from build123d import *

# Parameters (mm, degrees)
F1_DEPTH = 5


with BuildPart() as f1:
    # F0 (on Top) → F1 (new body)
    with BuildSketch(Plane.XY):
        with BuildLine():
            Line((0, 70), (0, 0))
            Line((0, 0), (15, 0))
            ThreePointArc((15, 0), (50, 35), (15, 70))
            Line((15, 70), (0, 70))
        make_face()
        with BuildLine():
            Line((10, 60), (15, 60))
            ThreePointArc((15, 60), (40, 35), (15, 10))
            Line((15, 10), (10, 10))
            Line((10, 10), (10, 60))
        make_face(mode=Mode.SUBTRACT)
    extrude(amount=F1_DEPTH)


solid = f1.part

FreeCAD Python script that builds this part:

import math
import FreeCAD as App
import Part
import Sketcher

V = App.Vector
Q = App.Units.Quantity

doc = App.newDocument("Part")
body = doc.addObject("PartDesign::Body", "Body")

# Sketch on XY plane
sketch1 = body.newObject("Sketcher::SketchObject", "Sketch")
sketch1.AttachmentSupport = (doc.getObject("XY_Plane"), [""])
sketch1.MapMode = "FlatFace"
sketch1.addGeometry([
    Part.LineSegment(V(0, 70, 0), V(0, 0, 0)),  # 0
    Part.LineSegment(V(0, 0, 0), V(15, 0, 0)),  # 1
    Part.ArcOfCircle(Part.Circle(V(15, 35, 0), V(0, 0, 1), 35), math.radians(-90), math.radians(90)),  # 2
    Part.LineSegment(V(15, 70, 0), V(0, 70, 0)),  # 3
    Part.LineSegment(V(10, 10, 0), V(10, 60, 0)),  # 4
    Part.LineSegment(V(10, 60, 0), V(15, 60, 0)),  # 5
    Part.ArcOfCircle(Part.Circle(V(15, 35, 0), V(0, 0, 1), 25), math.radians(-90), math.radians(90)),  # 6
    Part.LineSegment(V(15, 10, 0), V(10, 10, 0)),  # 7
], False)
sketch1.addConstraint([
    Sketcher.Constraint("Coincident", 0, 2, 1, 1),
    Sketcher.Constraint("Tangent", 1, 2, 2, 1),
    Sketcher.Constraint("Tangent", 2, 2, 3, 1),
    Sketcher.Constraint("Coincident", 3, 2, 0, 1),
    Sketcher.Constraint("Coincident", 4, 2, 5, 1),
    Sketcher.Constraint("Tangent", 5, 2, 6, 2),
    Sketcher.Constraint("Tangent", 6, 1, 7, 1),
    Sketcher.Constraint("Coincident", 7, 2, 4, 1),
    Sketcher.Constraint("Vertical", 0),
    Sketcher.Constraint("Horizontal", 1),
    Sketcher.Constraint("Horizontal", 3),
    Sketcher.Constraint("Vertical", 4),
    Sketcher.Constraint("Horizontal", 5),
    Sketcher.Constraint("Horizontal", 7),
    Sketcher.Constraint("Coincident", 0, 2, -1, 1),
    Sketcher.Constraint("Coincident", 6, 3, 2, 3),
    Sketcher.Constraint("Radius", 2, Q("35 mm")),
    Sketcher.Constraint("Radius", 6, Q("25 mm")),
    Sketcher.Constraint("DistanceX", 1, 1, 1, 2, Q("15 mm")),
    Sketcher.Constraint("DistanceX", 5, 1, 5, 2, Q("5 mm")),
])
pad1 = body.newObject("PartDesign::Pad", "Pad")
pad1.Profile = sketch1
pad1.Length = 5

doc.recompute()
